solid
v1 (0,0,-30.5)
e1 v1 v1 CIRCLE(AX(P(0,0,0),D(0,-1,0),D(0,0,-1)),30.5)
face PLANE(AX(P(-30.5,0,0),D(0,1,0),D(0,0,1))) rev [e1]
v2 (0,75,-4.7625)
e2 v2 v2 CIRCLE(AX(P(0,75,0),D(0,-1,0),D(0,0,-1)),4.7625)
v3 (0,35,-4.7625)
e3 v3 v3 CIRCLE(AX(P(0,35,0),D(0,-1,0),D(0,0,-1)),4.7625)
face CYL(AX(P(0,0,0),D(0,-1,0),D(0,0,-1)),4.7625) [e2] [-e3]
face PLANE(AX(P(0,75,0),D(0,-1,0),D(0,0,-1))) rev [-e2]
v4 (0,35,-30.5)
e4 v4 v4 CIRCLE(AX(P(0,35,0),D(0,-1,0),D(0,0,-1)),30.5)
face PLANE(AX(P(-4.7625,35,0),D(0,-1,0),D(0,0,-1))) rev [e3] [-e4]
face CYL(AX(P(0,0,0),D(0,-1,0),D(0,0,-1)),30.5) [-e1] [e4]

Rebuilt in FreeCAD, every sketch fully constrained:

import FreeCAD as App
import Part
import Sketcher

V = App.Vector
Q = App.Units.Quantity

doc = App.newDocument("Part")
params = doc.addObject("Spreadsheet::Sheet", "Params")
for row, (alias, value) in enumerate([
    ("sketch1_height", "75 mm"),
    ("sketch1_height2", "40 mm"),
    ("sketch1_width", "30.5 mm"),
    ("revolution_angle", "360 deg"),
], start=1):
    params.set(f"A{row}", alias)
    params.set(f"B{row}", "=" + value)
    params.setAlias(f"B{row}", alias)

body = doc.addObject("PartDesign::Body", "Body")

# Sketch on XY plane
sketch1 = doc.addObject("Sketcher::SketchObject", "Sketch")
body.addObject(sketch1)
sketch1.AttachmentSupport = (doc.XY_Plane, [""])
sketch1.MapMode = "FlatFace"
sketch1.addGeometry(Part.LineSegment(V(0, 0, 0), V(0, 75, 0)), False)
sketch1.addGeometry(Part.LineSegment(V(0, 75, 0), V(-4.7625, 75, 0)), False)
sketch1.addGeometry(Part.LineSegment(V(-4.7625, 75, 0), V(-4.7625, 35, 0)), False)
sketch1.addGeometry(Part.LineSegment(V(-4.7625, 35, 0), V(-30.5, 35, 0)), False)
sketch1.addGeometry(Part.LineSegment(V(-30.5, 35, 0), V(-30.5, 0, 0)), False)
sketch1.addGeometry(Part.LineSegment(V(-30.5, 0, 0), V(0, 0, 0)), False)
sketch1.addConstraint(Sketcher.Constraint("Coincident", 0, 2, 1, 1))
sketch1.addConstraint(Sketcher.Constraint("Coincident", 1, 2, 2, 1))
sketch1.addConstraint(Sketcher.Constraint("Coincident", 2, 2, 3, 1))
sketch1.addConstraint(Sketcher.Constraint("Coincident", 3, 2, 4, 1))
sketch1.addConstraint(Sketcher.Constraint("Coincident", 4, 2, 5, 1))
sketch1.addConstraint(Sketcher.Constraint("Coincident", 5, 2, 0, 1))
sketch1.addConstraint(Sketcher.Constraint("Vertical", 0))
sketch1.addConstraint(Sketcher.Constraint("Horizontal", 1))
sketch1.addConstraint(Sketcher.Constraint("Vertical", 2))
sketch1.addConstraint(Sketcher.Constraint("Horizontal", 3))
sketch1.addConstraint(Sketcher.Constraint("Vertical", 4))
sketch1.addConstraint(Sketcher.Constraint("Horizontal", 5))
sketch1.addConstraint(Sketcher.Constraint("Coincident", 5, 2, -1, 1))
sketch1.addConstraint(Sketcher.Constraint("DistanceY", 0, 1, 0, 2, Q("75 mm")))
sketch1.addConstraint(Sketcher.Constraint("DistanceY", 2, 2, 2, 1, Q("40 mm")))
sketch1.addConstraint(Sketcher.Constraint("DistanceX", 5, 1, 5, 2, Q("30.5 mm")))
sketch1.addConstraint(Sketcher.Constraint("DistanceX", 1, 2, 1, 1, Q("4.7625 mm")))
sketch1.setExpression("Constraints[13]", "Params.sketch1_height")
sketch1.setExpression("Constraints[14]", "Params.sketch1_height2")
sketch1.setExpression("Constraints[15]", "Params.sketch1_width")
revolution = doc.addObject("PartDesign::Revolution", "Revolution")
body.addObject(revolution)
revolution.Profile = sketch1
revolution.ReferenceAxis = (sketch1, ["V_Axis"])
revolution.setExpression("Angle", "Params.revolution_angle")

doc.recompute()
